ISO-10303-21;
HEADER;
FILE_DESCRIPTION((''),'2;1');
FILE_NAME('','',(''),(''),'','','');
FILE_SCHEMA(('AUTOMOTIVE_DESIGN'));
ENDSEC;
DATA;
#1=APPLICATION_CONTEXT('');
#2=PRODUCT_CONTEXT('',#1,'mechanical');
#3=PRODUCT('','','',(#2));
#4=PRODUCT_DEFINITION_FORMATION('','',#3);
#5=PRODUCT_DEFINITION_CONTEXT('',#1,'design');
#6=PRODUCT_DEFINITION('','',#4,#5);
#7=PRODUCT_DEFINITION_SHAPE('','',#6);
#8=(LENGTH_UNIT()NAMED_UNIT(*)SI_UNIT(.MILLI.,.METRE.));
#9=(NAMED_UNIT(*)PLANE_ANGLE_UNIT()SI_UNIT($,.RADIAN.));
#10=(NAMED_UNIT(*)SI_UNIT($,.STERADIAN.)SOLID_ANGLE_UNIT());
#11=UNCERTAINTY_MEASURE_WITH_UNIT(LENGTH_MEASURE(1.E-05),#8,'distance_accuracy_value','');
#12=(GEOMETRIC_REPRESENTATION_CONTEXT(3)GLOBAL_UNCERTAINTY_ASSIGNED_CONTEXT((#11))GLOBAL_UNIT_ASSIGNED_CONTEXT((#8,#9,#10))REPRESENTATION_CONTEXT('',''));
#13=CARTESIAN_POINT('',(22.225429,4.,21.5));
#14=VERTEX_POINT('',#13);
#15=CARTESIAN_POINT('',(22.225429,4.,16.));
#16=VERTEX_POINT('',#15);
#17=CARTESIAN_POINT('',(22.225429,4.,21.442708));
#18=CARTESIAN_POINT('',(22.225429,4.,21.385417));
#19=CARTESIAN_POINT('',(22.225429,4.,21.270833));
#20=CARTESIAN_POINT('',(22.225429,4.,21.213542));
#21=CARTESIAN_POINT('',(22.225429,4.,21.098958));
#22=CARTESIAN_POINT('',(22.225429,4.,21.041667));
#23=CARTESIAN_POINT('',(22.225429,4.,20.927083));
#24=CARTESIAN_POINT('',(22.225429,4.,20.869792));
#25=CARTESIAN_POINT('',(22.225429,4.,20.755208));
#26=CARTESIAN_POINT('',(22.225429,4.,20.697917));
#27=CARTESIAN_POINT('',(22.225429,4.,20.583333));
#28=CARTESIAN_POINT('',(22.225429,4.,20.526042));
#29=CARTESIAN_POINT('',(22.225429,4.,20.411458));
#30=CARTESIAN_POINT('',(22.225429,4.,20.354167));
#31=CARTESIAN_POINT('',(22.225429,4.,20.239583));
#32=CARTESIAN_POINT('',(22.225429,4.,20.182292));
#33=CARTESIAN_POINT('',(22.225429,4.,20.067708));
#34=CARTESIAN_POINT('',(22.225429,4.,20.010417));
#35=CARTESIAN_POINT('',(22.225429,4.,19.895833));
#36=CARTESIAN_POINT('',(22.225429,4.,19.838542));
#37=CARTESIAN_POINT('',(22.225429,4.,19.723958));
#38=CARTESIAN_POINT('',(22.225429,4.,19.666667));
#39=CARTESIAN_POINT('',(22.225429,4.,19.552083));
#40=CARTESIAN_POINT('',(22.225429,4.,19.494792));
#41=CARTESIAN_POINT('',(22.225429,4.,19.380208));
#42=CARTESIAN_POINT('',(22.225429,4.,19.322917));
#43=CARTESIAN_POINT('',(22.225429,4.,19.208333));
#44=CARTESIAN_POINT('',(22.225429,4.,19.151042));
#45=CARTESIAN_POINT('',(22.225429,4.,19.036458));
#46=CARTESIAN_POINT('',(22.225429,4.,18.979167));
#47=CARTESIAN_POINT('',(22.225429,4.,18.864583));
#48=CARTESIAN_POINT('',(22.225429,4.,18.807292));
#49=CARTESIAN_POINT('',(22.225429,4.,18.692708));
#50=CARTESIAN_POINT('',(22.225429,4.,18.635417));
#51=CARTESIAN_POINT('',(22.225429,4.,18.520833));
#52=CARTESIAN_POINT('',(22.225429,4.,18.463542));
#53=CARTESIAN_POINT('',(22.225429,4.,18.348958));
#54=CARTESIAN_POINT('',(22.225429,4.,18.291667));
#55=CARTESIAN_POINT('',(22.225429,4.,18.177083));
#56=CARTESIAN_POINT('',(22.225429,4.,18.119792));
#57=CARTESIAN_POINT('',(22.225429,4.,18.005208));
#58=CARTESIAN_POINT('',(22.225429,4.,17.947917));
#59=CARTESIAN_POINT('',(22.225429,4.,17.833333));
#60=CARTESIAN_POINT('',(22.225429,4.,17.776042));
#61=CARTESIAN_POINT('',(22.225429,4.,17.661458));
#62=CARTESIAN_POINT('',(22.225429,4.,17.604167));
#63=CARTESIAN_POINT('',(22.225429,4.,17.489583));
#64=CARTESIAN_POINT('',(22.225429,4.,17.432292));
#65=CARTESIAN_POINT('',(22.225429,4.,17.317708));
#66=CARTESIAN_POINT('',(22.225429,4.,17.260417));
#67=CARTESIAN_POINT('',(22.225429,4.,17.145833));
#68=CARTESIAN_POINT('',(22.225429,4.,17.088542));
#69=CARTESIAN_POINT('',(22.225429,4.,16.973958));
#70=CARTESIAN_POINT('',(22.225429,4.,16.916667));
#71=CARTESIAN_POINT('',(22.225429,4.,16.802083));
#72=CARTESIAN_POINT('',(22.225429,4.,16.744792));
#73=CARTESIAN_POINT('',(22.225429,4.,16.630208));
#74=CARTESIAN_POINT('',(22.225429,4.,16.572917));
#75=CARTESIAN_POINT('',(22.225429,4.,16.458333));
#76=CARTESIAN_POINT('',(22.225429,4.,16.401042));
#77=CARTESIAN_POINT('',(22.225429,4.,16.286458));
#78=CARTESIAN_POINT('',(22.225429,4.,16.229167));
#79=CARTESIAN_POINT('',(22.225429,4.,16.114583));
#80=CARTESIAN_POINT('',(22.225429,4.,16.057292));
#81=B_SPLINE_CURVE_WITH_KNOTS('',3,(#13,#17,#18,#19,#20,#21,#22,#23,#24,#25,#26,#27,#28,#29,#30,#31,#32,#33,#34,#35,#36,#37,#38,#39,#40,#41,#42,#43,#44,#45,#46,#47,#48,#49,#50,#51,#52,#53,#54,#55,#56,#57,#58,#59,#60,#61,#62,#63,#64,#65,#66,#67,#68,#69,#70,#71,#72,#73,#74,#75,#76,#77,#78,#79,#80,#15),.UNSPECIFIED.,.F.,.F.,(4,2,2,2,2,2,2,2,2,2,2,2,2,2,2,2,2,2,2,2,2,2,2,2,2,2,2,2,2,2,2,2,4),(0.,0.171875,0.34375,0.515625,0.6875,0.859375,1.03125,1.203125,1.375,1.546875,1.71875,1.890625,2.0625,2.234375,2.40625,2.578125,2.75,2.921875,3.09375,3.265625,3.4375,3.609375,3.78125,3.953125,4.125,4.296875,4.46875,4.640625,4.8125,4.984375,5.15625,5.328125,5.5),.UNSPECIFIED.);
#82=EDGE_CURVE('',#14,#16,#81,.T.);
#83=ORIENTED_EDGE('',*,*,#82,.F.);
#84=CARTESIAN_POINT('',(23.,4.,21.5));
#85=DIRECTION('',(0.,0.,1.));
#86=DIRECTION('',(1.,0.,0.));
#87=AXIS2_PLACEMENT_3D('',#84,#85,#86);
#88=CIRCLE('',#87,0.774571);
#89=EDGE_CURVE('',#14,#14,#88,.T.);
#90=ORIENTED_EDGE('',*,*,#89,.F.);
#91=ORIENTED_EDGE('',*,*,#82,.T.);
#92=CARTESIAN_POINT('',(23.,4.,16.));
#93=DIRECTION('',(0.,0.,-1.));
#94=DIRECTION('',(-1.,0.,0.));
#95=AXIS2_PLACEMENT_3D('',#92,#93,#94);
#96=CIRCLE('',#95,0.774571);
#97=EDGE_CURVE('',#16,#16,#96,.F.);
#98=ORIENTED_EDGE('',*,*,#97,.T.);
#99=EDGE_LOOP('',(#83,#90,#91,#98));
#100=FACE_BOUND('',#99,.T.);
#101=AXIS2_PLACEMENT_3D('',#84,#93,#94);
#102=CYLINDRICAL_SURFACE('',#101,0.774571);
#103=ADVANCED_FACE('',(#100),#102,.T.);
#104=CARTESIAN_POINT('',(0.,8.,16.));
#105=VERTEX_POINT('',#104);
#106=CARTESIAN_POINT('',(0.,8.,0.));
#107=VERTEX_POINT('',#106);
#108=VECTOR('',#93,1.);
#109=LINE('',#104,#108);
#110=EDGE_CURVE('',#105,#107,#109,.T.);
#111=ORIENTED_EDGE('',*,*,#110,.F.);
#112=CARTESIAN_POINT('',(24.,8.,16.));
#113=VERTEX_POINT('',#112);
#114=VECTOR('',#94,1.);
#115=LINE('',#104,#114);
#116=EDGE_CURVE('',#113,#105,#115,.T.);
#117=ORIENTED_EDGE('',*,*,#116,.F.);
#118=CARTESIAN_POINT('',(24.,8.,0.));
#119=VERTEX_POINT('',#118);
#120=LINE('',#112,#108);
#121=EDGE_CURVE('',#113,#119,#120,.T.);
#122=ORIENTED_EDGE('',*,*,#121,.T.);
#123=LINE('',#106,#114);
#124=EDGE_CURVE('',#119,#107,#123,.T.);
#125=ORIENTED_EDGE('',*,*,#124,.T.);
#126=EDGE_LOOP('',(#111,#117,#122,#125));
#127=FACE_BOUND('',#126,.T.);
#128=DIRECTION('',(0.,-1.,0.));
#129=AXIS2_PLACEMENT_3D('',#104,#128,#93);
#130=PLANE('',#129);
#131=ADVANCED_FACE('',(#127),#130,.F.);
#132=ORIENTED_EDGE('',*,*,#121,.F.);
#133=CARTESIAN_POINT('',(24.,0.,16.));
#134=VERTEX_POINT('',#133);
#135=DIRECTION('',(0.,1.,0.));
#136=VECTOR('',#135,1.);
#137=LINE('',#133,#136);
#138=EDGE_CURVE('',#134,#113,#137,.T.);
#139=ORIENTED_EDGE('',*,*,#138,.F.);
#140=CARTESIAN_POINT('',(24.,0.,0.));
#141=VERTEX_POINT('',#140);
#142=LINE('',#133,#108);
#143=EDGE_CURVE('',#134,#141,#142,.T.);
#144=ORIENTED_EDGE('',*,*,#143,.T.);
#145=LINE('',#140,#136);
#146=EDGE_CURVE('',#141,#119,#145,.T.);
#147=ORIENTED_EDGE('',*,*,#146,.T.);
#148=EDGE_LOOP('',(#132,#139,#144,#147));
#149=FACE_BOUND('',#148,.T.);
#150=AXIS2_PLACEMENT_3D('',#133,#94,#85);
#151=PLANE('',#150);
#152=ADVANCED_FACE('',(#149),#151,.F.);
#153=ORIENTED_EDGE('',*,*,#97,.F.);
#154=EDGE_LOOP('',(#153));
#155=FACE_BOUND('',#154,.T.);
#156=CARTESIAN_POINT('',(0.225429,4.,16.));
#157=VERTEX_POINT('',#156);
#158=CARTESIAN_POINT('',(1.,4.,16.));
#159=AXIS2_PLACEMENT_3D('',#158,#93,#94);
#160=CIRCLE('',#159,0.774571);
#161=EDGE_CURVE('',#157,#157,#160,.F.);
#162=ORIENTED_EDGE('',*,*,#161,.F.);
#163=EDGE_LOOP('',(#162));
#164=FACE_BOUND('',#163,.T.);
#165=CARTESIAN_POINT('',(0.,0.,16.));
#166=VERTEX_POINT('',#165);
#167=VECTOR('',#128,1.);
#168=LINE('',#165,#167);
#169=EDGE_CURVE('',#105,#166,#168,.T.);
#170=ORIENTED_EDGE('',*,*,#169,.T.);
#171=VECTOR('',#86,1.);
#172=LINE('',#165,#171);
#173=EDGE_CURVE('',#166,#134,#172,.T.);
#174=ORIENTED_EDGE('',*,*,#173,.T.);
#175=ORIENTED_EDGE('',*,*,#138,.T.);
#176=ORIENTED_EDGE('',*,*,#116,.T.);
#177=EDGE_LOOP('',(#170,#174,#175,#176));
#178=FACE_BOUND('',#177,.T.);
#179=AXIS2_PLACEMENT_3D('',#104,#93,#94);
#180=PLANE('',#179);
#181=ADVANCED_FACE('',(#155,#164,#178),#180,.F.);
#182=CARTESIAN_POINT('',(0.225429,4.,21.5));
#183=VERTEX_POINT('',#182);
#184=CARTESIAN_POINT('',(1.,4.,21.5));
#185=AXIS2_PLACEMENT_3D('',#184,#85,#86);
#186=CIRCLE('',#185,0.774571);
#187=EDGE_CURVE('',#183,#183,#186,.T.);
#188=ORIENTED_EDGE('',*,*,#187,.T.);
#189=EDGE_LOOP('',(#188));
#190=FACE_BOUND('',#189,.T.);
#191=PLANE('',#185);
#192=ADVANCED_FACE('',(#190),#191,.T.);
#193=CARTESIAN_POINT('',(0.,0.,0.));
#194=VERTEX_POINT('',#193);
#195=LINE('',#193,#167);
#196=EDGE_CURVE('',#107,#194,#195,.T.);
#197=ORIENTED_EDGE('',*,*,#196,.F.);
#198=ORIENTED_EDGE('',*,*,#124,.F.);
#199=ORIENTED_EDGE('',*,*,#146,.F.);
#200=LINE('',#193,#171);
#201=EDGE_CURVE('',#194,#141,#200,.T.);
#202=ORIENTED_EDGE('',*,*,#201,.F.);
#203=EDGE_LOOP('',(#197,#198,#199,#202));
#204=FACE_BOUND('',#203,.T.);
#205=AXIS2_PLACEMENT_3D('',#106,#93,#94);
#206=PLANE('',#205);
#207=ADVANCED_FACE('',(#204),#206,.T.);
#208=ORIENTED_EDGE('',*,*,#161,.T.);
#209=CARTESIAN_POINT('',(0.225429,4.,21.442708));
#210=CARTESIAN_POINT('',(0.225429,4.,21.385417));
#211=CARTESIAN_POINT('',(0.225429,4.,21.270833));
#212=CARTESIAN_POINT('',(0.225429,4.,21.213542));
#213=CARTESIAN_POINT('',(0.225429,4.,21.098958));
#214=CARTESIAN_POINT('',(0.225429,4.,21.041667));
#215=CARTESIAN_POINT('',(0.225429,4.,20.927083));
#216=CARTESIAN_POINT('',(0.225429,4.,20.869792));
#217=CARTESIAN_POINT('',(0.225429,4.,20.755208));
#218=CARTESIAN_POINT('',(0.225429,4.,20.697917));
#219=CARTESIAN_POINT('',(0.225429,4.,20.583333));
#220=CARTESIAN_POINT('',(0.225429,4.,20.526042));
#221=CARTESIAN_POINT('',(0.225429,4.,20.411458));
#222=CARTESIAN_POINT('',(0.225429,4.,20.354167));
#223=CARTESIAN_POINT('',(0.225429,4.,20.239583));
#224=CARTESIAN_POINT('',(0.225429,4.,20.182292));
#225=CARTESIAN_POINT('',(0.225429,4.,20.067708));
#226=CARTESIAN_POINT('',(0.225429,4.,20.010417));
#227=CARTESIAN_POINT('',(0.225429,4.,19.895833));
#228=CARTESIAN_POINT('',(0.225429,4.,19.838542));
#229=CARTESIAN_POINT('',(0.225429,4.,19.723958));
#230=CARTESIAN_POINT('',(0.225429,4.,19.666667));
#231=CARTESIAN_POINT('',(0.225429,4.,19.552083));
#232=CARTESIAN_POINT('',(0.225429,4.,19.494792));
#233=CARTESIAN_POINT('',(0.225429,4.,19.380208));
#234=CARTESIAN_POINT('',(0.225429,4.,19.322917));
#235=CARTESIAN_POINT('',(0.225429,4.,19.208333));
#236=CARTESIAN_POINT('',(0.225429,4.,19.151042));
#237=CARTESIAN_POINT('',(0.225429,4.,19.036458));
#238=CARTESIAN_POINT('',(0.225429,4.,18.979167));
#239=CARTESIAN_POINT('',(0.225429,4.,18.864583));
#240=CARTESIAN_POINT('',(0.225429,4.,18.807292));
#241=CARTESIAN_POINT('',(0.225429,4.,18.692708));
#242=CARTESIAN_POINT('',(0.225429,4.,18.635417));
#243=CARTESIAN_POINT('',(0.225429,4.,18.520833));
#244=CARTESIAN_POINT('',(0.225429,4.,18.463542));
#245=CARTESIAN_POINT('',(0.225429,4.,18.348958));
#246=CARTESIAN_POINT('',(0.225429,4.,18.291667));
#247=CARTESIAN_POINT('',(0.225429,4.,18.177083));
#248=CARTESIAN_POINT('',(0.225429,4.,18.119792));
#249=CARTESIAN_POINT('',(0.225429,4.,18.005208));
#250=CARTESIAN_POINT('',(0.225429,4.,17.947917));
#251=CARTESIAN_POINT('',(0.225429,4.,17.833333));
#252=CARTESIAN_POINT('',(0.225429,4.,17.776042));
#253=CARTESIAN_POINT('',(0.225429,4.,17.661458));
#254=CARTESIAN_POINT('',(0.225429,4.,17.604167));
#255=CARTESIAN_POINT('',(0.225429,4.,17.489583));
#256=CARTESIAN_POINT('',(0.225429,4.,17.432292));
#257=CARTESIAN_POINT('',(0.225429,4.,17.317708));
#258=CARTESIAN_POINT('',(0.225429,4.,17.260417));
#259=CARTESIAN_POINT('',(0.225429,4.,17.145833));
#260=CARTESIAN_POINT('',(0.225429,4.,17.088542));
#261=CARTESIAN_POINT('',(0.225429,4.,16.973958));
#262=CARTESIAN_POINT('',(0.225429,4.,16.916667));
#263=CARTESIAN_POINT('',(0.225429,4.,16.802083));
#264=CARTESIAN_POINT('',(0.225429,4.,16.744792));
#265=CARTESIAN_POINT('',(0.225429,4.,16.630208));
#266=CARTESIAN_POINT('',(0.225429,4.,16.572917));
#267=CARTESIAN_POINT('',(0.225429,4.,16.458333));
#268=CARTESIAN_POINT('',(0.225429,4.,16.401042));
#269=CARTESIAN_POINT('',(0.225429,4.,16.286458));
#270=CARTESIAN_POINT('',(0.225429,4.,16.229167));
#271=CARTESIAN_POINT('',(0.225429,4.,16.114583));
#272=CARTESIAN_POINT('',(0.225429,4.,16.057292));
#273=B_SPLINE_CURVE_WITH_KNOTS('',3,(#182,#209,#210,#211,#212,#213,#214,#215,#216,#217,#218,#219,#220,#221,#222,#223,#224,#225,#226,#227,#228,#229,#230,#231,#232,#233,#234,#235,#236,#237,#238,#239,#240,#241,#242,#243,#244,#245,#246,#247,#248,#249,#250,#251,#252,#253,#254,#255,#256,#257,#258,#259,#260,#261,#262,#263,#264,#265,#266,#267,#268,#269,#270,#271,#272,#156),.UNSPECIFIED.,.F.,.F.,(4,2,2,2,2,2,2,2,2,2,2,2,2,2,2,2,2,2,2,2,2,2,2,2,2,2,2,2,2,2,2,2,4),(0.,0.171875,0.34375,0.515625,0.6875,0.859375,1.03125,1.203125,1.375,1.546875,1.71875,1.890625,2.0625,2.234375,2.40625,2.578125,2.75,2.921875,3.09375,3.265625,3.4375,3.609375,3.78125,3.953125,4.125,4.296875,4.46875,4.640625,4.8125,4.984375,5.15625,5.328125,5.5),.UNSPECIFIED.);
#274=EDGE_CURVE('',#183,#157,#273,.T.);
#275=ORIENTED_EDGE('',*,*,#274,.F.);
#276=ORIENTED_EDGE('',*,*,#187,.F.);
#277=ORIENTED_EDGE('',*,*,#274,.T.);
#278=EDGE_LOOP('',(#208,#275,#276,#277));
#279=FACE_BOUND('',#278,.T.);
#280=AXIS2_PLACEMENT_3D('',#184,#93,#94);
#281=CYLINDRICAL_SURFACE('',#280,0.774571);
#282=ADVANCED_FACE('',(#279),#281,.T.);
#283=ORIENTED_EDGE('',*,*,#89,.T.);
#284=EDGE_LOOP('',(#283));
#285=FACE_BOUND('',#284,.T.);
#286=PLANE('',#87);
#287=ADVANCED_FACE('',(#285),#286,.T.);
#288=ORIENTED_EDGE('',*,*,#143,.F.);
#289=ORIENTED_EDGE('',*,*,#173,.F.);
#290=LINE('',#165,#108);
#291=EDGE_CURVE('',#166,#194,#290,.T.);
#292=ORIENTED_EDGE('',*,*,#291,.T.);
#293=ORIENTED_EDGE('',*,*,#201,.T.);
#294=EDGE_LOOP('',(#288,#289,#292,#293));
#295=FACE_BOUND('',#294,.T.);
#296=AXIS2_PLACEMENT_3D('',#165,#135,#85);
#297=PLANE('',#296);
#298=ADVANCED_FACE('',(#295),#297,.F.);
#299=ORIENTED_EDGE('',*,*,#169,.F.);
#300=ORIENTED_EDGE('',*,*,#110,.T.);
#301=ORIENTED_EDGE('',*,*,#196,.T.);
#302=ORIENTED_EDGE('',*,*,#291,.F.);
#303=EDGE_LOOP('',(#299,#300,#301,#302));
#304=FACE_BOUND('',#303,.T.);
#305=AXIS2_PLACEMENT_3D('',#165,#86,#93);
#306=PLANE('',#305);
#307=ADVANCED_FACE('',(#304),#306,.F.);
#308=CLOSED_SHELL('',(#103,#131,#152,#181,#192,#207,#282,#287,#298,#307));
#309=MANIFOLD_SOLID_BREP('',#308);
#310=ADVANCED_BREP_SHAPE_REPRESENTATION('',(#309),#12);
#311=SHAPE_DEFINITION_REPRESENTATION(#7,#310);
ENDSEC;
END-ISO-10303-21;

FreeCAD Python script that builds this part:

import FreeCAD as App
import Part
import Sketcher
from FreeCAD import Vector


def add_polygon(sketch, points):
    """Adds a closed chain of lines whose ends are joined by coincident constraints."""
    first, n = sketch.GeometryCount, len(points)
    for a, b in zip(points, points[1:] + points[:1]):
        sketch.addGeometry(Part.LineSegment(App.Vector(*a, 0), App.Vector(*b, 0)), False)
    for i in range(n):
        sketch.addConstraint(Sketcher.Constraint("Coincident", first + i, 2, first + (i + 1) % n, 1))

doc = App.newDocument("Part")
body = doc.addObject("PartDesign::Body", "Body")

# Sketch on XY plane
sketch1 = body.newObject("Sketcher::SketchObject", "Sketch")
sketch1.AttachmentSupport = (doc.getObject("XY_Plane"), [""])
sketch1.MapMode = "FlatFace"
add_polygon(sketch1, [(0, 8), (0, 0), (24, 0), (24, 8)])  # lines 0-3
sketch1.addConstraint(Sketcher.Constraint("Vertical", 0))
sketch1.addConstraint(Sketcher.Constraint("Horizontal", 1))
sketch1.addConstraint(Sketcher.Constraint("Vertical", 2))
sketch1.addConstraint(Sketcher.Constraint("Horizontal", 3))
sketch1.addConstraint(Sketcher.Constraint("Coincident", 0, 2, -1, 1))
sketch1.addConstraint(Sketcher.Constraint("DistanceX", 1, 1, 1, 2, 24.0))
sketch1.addConstraint(Sketcher.Constraint("DistanceY", 0, 2, 0, 1, 8.0))
pad1 = body.newObject("PartDesign::Pad", "Pad")
pad1.Profile = sketch1
pad1.Length = 16

# Sketch on XY plane
sketch2 = body.newObject("Sketcher::SketchObject", "Sketch001")
sketch2.AttachmentSupport = (doc.getObject("XY_Plane"), [""])
sketch2.MapMode = "FlatFace"
sketch2.AttachmentOffset = App.Placement(Vector(0, 0, 16), App.Rotation())
sketch2.addGeometry(Part.Circle(Vector(1, 4, 0), Vector(0, 0, 1), 0.8), False)
sketch2.addGeometry(Part.Circle(Vector(23, 4, 0), Vector(0, 0, 1), 0.8), False)
sketch2.addConstraint(Sketcher.Constraint("Equal", 0, 1))
sketch2.addConstraint(Sketcher.Constraint("Horizontal", 0, 3, 1, 3))
sketch2.addConstraint(Sketcher.Constraint("DistanceX", -1, 1, 0, 3, 1.0))
sketch2.addConstraint(Sketcher.Constraint("DistanceY", -1, 1, 0, 3, 4.0))
sketch2.addConstraint(Sketcher.Constraint("DistanceX", -1, 1, 1, 3, 23.0))
sketch2.addConstraint(Sketcher.Constraint("Diameter", 0, 1.549143))
pad2 = body.newObject("PartDesign::Pad", "Pad001")
pad2.Profile = sketch2
pad2.Length = 5.5

doc.recompute()
